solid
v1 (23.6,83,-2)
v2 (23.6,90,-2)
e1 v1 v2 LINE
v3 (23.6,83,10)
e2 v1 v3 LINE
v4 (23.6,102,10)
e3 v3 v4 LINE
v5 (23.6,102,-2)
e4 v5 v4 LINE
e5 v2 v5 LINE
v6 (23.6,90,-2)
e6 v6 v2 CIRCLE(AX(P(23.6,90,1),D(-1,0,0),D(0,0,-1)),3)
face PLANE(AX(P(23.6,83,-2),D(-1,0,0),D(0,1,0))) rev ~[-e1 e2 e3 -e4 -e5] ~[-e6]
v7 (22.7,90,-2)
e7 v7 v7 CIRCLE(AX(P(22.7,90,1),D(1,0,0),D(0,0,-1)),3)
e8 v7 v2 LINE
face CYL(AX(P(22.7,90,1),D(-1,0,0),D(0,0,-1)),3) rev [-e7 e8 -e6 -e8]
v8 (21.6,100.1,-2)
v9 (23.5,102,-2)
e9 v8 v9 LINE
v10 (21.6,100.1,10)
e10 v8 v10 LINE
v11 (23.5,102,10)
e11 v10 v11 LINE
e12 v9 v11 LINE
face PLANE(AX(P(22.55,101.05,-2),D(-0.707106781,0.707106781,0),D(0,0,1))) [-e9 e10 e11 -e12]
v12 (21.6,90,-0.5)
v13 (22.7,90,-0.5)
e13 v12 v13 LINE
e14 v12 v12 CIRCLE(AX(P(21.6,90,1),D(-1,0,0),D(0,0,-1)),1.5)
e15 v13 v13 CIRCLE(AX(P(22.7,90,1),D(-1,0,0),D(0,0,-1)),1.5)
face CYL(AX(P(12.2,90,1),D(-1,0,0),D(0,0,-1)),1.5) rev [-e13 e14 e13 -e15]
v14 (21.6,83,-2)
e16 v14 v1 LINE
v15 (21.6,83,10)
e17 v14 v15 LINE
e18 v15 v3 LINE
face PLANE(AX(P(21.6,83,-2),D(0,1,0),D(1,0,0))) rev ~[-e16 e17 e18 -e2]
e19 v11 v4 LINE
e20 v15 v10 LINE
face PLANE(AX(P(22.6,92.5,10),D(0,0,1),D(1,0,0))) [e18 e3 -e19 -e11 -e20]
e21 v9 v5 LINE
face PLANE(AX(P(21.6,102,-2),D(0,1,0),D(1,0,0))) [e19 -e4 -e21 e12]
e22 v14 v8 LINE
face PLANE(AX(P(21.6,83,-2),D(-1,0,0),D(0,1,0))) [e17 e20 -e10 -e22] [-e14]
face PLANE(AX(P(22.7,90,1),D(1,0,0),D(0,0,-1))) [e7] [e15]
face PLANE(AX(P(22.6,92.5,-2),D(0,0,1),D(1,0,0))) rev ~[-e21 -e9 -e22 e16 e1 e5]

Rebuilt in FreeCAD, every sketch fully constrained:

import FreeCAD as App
import Part
import Sketcher


def edges_at(feature, points):
    """Names of the edges that pass closest to the given points."""
    edges = feature.Shape.Edges
    near = lambda p: min(range(len(edges)), key=lambda i: edges[i].distToShape(Part.Vertex(*p))[0])
    return sorted({f"Edge{near(p) + 1}" for p in points})

doc = App.newDocument("Part")
body = doc.addObject("PartDesign::Body", "Body")

# Sketch on XY plane
sketch1 = body.newObject("Sketcher::SketchObject", "Sketch")
sketch1.AttachmentSupport = (doc.getObject("XY_Plane"), [""])
sketch1.MapMode = "FlatFace"
sketch1.AttachmentOffset = App.Placement(App.Vector(0, 0, 6), App.Rotation())
sketch1.addGeometry(Part.Circle(App.Vector(1, 14, 0), App.Vector(0, 0, 1), 3), False)
sketch1.addConstraint([
    Sketcher.Constraint("Diameter", 0, 6.0),
    Sketcher.Constraint("DistanceX", -1, 1, 0, 3, 1.0),
    Sketcher.Constraint("DistanceY", -1, 1, 0, 3, 14.0),
])
pad1 = body.newObject("PartDesign::Pad", "Pad")
pad1.Profile = sketch1
pad1.Length = 3
body2 = doc.addObject("PartDesign::Body", "Body001")
doc.recompute()

body.Placement = App.Placement(App.Vector(16.5, 73, 2), App.Rotation(App.Vector(0, 1, 0), 90))
boolean = body2.newObject("PartDesign::Boolean", "Boolean")
boolean.Type = "Fuse"
boolean.addObjects([body])
body3 = doc.addObject("PartDesign::Body", "Body002")

# Sketch on XY plane
sketch2 = body3.newObject("Sketcher::SketchObject", "Sketch001")
sketch2.AttachmentSupport = (doc.getObject("XY_Plane002"), [""])
sketch2.MapMode = "FlatFace"
sketch2.AttachmentOffset = App.Placement(App.Vector(0, 0, 6), App.Rotation())
sketch2.addGeometry(Part.Circle(App.Vector(1, 14, 0), App.Vector(0, 0, 1), 1.5), False)
sketch2.addConstraint([
    Sketcher.Constraint("Diameter", 0, 3.0),
    Sketcher.Constraint("DistanceX", -1, 1, 0, 3, 1.0),
    Sketcher.Constraint("DistanceY", -1, 1, 0, 3, 14.0),
])
pad2 = body3.newObject("PartDesign::Pad", "Pad001")
pad2.Profile = sketch2
pad2.Length = 12
body4 = doc.addObject("PartDesign::Body", "Body003")

# Sketch on XY plane
sketch3 = body4.newObject("Sketcher::SketchObject", "Sketch002")
sketch3.AttachmentSupport = (doc.getObject("XY_Plane003"), [""])
sketch3.MapMode = "FlatFace"
sketch3.AttachmentOffset = App.Placement(App.Vector(0, 0, -0.1), App.Rotation())
sketch3.addGeometry(Part.Circle(App.Vector(1, 14, 0), App.Vector(0, 0, 1), 1.5), False)
sketch3.addConstraint([
    Sketcher.Constraint("Diameter", 0, 3.0),
    Sketcher.Constraint("DistanceX", -1, 1, 0, 3, 1.0),
    Sketcher.Constraint("DistanceY", -1, 1, 0, 3, 14.0),
])
pad3 = body4.newObject("PartDesign::Pad", "Pad002")
pad3.Profile = sketch3
pad3.Length = 4
body5 = doc.addObject("PartDesign::Body", "Body004")
body5.AllowCompound = True

# Sketch on XY plane
sketch4 = body5.newObject("Sketcher::SketchObject", "Sketch003")
sketch4.AttachmentSupport = (doc.getObject("XY_Plane004"), [""])
sketch4.MapMode = "FlatFace"
sketch4.AttachmentOffset = App.Placement(App.Vector(0, 0, 4), App.Rotation())
sketch4.addGeometry([
    Part.LineSegment(App.Vector(-2, 17, 0), App.Vector(-2, 11, 0)),
    Part.LineSegment(App.Vector(-2, 11, 0), App.Vector(4, 11, 0)),
    Part.LineSegment(App.Vector(4, 11, 0), App.Vector(4, 17, 0)),
    Part.LineSegment(App.Vector(4, 17, 0), App.Vector(-2, 17, 0)),
], False)
sketch4.addConstraint([
    Sketcher.Constraint("Coincident", 0, 2, 1, 1),
    Sketcher.Constraint("Coincident", 1, 2, 2, 1),
    Sketcher.Constraint("Coincident", 2, 2, 3, 1),
    Sketcher.Constraint("Coincident", 3, 2, 0, 1),
    Sketcher.Constraint("Vertical", 0),
    Sketcher.Constraint("Horizontal", 1),
    Sketcher.Constraint("Vertical", 2),
    Sketcher.Constraint("Horizontal", 3),
    Sketcher.Constraint("Equal", 3, 0),
    Sketcher.Constraint("DistanceX", 1, 1, 1, 2, 6.0),
    Sketcher.Constraint("DistanceX", 0, 2, -1, 1, 2.0),
    Sketcher.Constraint("DistanceY", -1, 1, 0, 2, 11.0),
])
pad4 = body5.newObject("PartDesign::Pad", "Pad003")
pad4.Profile = sketch4
pad4.Length = 2
doc.recompute()

boolean2 = body5.newObject("PartDesign::Boolean", "Boolean001")
boolean2.Type = "Fuse"
boolean2.addObjects([body3])
doc.recompute()

boolean3 = body5.newObject("PartDesign::Boolean", "Boolean002")
boolean3.Type = "Fuse"
boolean3.addObjects([body4])
body6 = doc.addObject("PartDesign::Body", "Body005")
body6.AllowCompound = True
doc.recompute()

body5.Placement = App.Placement(App.Vector(6, 73, 2), App.Rotation(App.Vector(0, 1, 0), 90))
boolean4 = body6.newObject("PartDesign::Boolean", "Boolean003")
boolean4.Type = "Fuse"
boolean4.addObjects([body5])
body7 = doc.addObject("PartDesign::Body", "Body006")

# Sketch on XY plane
sketch5 = body7.newObject("Sketcher::SketchObject", "Sketch004")
sketch5.AttachmentSupport = (doc.getObject("XY_Plane006"), [""])
sketch5.MapMode = "FlatFace"
sketch5.AttachmentOffset = App.Placement(App.Vector(0, 0, -2), App.Rotation())
sketch5.addGeometry([
    Part.LineSegment(App.Vector(21.4, 99, 0), App.Vector(21.4, 80, 0)),
    Part.LineSegment(App.Vector(21.4, 80, 0), App.Vector(23.4, 80, 0)),
    Part.LineSegment(App.Vector(23.4, 80, 0), App.Vector(23.4, 99, 0)),
    Part.LineSegment(App.Vector(23.4, 99, 0), App.Vector(21.4, 99, 0)),
], False)
sketch5.addConstraint([
    Sketcher.Constraint("Coincident", 0, 2, 1, 1),
    Sketcher.Constraint("Coincident", 1, 2, 2, 1),
    Sketcher.Constraint("Coincident", 2, 2, 3, 1),
    Sketcher.Constraint("Coincident", 3, 2, 0, 1),
    Sketcher.Constraint("Vertical", 0),
    Sketcher.Constraint("Horizontal", 1),
    Sketcher.Constraint("Vertical", 2),
    Sketcher.Constraint("Horizontal", 3),
    Sketcher.Constraint("DistanceX", 1, 1, 1, 2, 2.0),
    Sketcher.Constraint("DistanceY", 0, 2, 0, 1, 19.0),
    Sketcher.Constraint("DistanceY", -1, 1, 0, 2, 80.0),
    Sketcher.Constraint("DistanceX", -1, 1, 0, 2, 21.4),
])
pad5 = body7.newObject("PartDesign::Pad", "Pad004")
pad5.Profile = sketch5
pad5.Length = 12
doc.recompute()

boolean5 = body7.newObject("PartDesign::Boolean", "Boolean004")
boolean5.Type = "Cut"
boolean5.addObjects([body6])
doc.recompute()

boolean6 = body7.newObject("PartDesign::Boolean", "Boolean005")
boolean6.Type = "Cut"
boolean6.addObjects([body2])
doc.recompute()

chamfer = body7.newObject("PartDesign::Chamfer", "Chamfer")
chamfer.Base = (boolean6, edges_at(boolean6, [(21.4, 99, 4)]))
chamfer.Size = 1.9
body8 = doc.addObject("PartDesign::Body", "Body007")
doc.recompute()

body7.Placement = App.Placement(App.Vector(0.2, 3, 0), App.Rotation(App.Vector(0, 0, 1), 0))
boolean7 = body8.newObject("PartDesign::Boolean", "Boolean006")
boolean7.Type = "Fuse"
boolean7.addObjects([body7])

doc.recompute()
